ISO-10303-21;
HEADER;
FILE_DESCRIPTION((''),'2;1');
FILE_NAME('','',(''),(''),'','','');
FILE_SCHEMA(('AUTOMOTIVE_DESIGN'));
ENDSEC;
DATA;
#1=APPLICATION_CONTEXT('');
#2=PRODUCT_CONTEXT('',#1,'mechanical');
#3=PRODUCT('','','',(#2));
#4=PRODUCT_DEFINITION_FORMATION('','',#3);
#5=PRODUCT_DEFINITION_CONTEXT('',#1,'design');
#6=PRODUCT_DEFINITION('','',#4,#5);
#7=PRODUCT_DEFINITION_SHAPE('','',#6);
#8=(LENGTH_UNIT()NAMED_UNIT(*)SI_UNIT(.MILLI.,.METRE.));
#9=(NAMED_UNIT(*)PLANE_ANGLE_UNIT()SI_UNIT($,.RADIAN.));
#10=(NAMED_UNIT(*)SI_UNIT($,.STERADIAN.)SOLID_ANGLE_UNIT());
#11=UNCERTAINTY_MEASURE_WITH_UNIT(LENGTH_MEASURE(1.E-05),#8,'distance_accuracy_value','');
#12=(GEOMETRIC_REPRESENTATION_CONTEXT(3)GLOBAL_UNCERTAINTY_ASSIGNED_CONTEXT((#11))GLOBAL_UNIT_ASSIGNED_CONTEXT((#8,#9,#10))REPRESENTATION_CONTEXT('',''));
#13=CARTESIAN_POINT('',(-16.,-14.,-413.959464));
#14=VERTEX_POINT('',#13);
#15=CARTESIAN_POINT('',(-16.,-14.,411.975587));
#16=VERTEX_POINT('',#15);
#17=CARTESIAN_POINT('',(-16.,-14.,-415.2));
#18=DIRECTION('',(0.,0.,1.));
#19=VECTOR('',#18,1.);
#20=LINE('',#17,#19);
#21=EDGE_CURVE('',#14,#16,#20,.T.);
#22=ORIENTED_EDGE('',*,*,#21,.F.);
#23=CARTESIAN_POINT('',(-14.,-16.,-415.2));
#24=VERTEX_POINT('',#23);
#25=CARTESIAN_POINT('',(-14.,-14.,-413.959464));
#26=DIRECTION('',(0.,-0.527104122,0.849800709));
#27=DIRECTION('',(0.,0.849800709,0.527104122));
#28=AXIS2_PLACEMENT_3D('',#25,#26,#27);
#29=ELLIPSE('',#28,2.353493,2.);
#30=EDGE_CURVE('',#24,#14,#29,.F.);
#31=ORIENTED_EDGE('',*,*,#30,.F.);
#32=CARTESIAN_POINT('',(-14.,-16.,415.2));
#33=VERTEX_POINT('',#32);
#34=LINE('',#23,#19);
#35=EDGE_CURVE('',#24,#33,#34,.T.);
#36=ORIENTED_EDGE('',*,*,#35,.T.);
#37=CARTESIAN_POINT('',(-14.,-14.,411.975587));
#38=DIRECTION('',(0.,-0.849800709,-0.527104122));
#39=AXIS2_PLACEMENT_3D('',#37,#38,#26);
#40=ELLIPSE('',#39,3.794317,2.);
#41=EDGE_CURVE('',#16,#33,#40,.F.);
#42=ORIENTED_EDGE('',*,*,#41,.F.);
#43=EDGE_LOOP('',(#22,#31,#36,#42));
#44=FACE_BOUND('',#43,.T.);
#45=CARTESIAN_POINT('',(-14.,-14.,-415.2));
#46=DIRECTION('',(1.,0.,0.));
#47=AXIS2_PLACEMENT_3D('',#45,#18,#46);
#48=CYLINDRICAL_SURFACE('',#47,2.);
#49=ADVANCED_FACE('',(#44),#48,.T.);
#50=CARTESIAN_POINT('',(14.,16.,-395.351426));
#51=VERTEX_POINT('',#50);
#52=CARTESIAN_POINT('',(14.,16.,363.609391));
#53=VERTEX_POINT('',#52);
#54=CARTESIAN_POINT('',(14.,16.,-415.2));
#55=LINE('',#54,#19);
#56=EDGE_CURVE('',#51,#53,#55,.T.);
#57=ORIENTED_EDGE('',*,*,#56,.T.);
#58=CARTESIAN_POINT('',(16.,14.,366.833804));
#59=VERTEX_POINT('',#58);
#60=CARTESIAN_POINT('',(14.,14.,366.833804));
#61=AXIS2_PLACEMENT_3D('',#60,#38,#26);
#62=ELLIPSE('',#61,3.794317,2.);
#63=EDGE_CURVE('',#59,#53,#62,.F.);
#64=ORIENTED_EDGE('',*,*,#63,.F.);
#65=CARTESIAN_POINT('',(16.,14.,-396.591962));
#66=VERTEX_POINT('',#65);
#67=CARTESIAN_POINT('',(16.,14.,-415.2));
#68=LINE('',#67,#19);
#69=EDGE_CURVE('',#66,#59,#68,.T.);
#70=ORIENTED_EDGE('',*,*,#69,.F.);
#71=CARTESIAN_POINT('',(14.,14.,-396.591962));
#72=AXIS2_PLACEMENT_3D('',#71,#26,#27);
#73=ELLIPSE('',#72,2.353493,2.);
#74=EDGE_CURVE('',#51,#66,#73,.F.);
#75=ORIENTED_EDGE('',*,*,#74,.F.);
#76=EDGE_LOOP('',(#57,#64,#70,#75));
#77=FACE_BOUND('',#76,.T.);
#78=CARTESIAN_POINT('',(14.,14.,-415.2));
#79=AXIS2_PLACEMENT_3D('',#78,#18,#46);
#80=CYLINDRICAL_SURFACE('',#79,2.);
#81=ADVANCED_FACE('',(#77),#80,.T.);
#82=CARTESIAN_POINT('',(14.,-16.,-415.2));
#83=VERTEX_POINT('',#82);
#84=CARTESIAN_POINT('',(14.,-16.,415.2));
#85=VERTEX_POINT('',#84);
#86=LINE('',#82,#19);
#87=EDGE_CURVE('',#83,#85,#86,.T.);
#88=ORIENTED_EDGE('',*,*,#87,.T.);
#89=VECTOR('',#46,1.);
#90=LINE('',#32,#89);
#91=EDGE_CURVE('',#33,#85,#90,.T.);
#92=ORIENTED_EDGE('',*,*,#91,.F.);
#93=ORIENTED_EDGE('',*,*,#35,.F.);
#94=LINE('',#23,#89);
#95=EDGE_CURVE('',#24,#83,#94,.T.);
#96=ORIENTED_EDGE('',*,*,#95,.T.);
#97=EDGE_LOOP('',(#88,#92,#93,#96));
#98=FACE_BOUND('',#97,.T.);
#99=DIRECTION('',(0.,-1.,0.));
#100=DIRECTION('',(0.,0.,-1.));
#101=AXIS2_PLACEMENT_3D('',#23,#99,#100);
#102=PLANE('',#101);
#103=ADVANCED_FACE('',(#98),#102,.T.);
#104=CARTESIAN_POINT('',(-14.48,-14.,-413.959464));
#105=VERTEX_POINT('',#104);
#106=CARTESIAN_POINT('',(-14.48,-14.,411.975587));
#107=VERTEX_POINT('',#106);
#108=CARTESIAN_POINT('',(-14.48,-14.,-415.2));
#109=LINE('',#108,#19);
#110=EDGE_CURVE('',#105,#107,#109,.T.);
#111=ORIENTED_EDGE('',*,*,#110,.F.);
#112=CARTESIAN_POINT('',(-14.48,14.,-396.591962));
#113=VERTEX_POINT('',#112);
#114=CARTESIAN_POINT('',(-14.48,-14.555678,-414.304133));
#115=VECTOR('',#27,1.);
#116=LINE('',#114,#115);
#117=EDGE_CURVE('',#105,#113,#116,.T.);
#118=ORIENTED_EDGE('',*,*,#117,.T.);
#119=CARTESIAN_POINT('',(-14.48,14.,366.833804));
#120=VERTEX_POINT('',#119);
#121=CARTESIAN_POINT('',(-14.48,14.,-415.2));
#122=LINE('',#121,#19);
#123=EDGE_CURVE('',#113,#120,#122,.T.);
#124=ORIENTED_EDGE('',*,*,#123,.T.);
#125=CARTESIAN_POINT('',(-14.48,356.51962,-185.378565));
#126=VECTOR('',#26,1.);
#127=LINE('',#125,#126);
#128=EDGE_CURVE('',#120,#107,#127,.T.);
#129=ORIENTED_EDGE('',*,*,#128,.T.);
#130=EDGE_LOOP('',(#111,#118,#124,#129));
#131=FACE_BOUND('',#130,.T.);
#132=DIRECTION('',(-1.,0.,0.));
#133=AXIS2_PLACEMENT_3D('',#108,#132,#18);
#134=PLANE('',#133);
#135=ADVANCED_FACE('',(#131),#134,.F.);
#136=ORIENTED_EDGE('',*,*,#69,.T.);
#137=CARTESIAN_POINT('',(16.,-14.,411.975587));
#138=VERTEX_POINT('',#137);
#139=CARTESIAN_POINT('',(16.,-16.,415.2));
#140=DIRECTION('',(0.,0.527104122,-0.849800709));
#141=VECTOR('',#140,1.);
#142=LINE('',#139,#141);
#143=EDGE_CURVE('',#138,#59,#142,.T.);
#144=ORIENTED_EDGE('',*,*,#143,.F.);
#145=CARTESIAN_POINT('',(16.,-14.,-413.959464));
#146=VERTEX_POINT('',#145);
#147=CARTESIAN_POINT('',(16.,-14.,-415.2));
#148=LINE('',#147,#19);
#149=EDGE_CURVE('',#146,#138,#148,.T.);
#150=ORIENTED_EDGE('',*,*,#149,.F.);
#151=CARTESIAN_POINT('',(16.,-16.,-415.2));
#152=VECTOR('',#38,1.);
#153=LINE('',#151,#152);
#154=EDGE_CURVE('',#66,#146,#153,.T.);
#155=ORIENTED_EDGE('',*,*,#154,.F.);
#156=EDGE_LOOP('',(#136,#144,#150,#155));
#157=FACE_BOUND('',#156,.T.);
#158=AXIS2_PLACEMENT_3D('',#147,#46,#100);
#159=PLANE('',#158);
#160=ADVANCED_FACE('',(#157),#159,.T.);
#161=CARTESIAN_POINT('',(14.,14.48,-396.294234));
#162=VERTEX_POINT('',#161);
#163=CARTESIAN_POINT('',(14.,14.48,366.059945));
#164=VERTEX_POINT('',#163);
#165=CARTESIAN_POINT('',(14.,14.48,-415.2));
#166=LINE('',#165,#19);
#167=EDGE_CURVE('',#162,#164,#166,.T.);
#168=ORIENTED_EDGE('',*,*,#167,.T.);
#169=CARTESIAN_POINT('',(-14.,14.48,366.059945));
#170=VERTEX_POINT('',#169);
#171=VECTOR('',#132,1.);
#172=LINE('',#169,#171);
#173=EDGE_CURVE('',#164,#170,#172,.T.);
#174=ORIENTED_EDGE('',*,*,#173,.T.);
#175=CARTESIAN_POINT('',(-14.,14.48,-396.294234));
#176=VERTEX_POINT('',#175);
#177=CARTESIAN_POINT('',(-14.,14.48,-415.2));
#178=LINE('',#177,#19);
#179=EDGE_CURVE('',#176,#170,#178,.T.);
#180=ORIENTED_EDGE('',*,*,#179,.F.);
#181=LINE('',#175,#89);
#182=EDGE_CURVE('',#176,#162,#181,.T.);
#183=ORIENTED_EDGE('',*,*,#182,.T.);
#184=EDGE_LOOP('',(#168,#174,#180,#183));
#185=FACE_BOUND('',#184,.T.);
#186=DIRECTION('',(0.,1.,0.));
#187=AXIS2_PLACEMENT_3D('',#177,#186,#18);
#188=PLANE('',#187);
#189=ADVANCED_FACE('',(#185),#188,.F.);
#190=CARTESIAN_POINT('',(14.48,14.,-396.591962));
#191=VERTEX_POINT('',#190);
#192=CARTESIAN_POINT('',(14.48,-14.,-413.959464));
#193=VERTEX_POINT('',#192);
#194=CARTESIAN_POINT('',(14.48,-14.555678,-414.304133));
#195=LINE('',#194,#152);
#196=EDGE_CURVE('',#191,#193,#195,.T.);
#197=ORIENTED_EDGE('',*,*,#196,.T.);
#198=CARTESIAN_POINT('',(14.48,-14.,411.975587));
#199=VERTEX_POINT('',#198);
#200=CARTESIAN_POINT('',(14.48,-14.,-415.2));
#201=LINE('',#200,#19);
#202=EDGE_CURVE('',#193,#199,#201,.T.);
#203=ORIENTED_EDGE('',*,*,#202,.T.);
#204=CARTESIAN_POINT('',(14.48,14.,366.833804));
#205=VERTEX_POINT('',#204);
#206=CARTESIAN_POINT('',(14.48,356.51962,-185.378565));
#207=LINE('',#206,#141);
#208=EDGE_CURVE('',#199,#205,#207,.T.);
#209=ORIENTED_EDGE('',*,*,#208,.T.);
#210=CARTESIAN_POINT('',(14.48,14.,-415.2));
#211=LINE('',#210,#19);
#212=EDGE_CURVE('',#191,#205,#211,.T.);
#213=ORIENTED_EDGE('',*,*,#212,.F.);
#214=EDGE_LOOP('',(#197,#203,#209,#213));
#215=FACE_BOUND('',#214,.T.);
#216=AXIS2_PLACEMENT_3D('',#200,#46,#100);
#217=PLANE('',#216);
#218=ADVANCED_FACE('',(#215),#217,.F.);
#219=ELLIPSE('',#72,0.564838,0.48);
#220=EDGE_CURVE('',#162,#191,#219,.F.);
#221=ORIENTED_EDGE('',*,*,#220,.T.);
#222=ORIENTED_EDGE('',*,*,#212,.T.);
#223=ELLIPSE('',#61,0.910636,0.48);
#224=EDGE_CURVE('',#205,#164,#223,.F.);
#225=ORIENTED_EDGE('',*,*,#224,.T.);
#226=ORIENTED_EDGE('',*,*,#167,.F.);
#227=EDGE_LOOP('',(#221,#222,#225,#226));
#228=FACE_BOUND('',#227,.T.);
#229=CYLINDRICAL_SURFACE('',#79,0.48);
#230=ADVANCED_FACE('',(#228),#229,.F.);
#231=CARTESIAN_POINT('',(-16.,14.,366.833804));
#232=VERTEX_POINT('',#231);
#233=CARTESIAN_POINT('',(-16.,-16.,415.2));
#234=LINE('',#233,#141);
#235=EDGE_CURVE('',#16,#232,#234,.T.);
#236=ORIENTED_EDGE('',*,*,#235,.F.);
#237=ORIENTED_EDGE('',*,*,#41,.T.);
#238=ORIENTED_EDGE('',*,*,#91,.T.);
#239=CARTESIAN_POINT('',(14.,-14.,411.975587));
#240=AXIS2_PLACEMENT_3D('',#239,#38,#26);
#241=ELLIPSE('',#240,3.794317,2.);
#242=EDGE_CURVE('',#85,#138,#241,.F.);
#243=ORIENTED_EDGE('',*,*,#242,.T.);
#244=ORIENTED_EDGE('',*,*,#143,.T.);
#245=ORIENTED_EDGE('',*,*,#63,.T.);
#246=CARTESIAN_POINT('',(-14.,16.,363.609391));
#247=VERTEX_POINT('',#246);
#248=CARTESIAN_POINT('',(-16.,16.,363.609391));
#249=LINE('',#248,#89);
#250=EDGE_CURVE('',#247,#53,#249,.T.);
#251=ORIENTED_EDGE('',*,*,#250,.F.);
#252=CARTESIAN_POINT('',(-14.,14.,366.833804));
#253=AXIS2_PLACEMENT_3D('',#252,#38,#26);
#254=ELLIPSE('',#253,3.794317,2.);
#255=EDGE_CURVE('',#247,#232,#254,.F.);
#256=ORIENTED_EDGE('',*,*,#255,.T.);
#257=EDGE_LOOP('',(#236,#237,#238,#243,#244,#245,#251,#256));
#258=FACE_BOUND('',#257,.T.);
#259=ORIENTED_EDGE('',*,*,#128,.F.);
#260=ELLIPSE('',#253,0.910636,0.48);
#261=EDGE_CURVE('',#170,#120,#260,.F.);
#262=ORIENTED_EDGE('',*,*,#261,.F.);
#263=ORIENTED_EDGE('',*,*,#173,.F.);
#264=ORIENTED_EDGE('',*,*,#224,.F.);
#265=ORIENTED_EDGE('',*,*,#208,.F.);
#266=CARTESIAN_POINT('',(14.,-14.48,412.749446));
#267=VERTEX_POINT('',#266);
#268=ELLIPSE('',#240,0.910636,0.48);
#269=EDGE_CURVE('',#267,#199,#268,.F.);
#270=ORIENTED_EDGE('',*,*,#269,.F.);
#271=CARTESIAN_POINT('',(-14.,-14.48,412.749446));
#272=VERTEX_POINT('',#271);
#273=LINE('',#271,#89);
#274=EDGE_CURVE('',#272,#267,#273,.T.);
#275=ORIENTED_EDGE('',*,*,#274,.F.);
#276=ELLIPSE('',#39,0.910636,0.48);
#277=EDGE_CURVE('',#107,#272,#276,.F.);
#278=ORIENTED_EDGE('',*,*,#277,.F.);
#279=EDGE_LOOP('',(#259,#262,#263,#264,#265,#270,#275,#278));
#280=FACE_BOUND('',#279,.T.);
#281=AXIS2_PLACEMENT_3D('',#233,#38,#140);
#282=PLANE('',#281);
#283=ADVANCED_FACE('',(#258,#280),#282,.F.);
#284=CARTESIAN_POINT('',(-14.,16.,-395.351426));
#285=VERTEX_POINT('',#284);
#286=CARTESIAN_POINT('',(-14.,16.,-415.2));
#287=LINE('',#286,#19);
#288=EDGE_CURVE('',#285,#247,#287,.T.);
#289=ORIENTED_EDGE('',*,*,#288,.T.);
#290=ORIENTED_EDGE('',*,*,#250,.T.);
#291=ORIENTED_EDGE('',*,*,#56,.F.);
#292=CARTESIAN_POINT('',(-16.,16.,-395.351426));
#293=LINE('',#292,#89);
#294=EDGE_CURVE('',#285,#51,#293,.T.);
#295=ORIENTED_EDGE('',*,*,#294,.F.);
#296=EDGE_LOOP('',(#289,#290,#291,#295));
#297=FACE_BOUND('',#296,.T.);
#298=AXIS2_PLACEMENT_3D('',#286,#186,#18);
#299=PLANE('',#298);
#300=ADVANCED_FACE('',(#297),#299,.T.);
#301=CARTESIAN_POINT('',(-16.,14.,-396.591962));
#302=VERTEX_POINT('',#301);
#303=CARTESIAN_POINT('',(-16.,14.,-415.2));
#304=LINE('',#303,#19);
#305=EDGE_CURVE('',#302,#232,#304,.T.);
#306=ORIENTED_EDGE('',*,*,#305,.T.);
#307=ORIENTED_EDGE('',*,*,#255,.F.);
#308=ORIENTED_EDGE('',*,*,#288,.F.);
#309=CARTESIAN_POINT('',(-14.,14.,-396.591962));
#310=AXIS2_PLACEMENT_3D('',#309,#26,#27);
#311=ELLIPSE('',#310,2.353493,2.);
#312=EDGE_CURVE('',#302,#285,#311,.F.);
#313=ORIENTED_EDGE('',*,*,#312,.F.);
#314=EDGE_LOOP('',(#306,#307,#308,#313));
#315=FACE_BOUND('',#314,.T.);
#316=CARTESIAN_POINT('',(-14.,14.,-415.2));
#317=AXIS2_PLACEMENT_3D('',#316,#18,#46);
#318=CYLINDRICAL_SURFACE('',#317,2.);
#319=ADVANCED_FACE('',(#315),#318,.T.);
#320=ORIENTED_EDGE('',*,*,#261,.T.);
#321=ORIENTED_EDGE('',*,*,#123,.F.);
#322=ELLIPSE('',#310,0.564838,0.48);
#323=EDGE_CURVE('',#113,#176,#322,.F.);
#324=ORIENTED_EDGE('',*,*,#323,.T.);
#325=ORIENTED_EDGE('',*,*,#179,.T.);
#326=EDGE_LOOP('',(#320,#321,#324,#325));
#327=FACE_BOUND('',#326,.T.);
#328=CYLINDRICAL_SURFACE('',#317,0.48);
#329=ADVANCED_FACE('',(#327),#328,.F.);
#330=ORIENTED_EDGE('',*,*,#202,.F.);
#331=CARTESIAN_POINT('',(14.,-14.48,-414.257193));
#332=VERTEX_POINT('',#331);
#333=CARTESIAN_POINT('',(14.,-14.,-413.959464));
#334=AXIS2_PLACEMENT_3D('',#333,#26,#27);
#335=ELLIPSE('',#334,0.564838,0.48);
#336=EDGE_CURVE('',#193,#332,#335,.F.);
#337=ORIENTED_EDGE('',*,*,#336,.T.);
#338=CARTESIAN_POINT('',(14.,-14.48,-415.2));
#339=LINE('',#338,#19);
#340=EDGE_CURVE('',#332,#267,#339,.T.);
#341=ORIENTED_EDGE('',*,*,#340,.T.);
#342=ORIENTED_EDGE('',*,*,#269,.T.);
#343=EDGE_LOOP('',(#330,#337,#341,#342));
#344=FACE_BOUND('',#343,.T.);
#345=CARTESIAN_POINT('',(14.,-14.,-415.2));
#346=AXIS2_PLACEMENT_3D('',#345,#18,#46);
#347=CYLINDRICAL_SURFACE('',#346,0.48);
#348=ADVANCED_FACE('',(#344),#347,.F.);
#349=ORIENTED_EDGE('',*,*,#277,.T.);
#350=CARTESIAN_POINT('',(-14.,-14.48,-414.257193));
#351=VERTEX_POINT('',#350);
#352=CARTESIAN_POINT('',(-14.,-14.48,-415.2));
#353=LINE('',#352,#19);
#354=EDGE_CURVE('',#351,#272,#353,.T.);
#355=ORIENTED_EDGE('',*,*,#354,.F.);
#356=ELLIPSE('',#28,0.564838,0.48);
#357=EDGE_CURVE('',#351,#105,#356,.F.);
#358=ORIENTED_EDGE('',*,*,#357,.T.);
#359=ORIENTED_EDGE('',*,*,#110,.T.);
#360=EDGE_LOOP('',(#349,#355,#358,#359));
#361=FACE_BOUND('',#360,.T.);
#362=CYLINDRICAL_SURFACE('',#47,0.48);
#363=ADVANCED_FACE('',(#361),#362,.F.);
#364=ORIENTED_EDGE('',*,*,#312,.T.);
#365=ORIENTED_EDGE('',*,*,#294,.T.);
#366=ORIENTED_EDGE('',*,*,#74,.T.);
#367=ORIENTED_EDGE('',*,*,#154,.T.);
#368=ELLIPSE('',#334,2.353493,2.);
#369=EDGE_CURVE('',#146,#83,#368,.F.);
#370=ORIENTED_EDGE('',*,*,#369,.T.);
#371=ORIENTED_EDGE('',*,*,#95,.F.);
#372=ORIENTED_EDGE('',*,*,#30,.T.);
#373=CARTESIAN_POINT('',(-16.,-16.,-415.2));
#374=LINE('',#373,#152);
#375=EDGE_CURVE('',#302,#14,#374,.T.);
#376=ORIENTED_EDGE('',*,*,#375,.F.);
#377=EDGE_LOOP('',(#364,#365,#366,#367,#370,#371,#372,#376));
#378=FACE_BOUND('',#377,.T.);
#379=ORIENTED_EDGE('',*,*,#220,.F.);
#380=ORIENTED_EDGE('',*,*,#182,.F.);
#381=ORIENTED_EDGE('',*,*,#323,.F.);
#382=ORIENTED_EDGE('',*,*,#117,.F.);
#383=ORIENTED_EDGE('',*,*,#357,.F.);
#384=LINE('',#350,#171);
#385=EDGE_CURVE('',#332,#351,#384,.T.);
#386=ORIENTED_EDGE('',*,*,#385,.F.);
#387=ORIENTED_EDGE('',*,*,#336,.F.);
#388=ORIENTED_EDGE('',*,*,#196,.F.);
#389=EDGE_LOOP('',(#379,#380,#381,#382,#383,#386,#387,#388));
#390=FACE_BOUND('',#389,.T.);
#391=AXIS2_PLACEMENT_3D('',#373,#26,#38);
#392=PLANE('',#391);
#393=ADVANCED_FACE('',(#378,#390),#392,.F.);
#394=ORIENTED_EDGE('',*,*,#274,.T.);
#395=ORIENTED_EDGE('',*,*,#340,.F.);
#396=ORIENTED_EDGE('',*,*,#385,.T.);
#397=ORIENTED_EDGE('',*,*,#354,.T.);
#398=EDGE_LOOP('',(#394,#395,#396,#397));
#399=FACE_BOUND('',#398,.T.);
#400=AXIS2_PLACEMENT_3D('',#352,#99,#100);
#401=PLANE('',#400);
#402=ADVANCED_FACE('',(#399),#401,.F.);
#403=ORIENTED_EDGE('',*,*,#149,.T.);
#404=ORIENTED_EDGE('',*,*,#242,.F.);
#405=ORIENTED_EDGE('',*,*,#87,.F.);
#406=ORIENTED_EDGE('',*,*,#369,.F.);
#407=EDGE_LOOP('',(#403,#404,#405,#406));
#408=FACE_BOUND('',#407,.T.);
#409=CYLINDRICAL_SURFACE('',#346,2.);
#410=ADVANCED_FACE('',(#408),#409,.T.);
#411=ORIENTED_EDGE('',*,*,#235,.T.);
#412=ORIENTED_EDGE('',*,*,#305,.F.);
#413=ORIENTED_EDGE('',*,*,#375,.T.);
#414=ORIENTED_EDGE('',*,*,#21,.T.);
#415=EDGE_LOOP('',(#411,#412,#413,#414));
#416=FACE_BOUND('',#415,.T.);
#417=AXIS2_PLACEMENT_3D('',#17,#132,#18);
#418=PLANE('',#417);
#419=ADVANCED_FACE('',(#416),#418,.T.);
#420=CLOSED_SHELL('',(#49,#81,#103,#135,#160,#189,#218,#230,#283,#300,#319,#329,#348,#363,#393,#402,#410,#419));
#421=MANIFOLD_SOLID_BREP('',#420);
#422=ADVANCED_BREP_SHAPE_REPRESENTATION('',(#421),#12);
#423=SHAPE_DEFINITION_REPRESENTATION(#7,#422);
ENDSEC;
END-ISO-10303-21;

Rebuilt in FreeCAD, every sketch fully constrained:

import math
import FreeCAD as App
import Part
import Sketcher
Q = App.Units.Quantity


def add_polygon(sketch, points):
    """Adds a closed chain of lines whose ends are joined by coincident constraints."""
    first, n = sketch.GeometryCount, len(points)
    for a, b in zip(points, points[1:] + points[:1]):
        sketch.addGeometry(Part.LineSegment(App.Vector(*a, 0), App.Vector(*b, 0)), False)
    for i in range(n):
        sketch.addConstraint(Sketcher.Constraint("Coincident", first + i, 2, first + (i + 1) % n, 1))

doc = App.newDocument("Part")
body = doc.addObject("PartDesign::Body", "Body")

# Sketch on XY plane
sketch1 = body.newObject("Sketcher::SketchObject", "Sketch")
sketch1.AttachmentSupport = (doc.getObject("XY_Plane"), [""])
sketch1.MapMode = "FlatFace"
sketch1.addGeometry(Part.LineSegment(App.Vector(-14, -16, 0), App.Vector(14, -16, 0)), False)
sketch1.addGeometry(Part.ArcOfCircle(Part.Circle(App.Vector(14, -14, 0), App.Vector(0, 0, 1), 2), math.radians(-90), math.radians(0)), False)
sketch1.addGeometry(Part.LineSegment(App.Vector(16, -14, 0), App.Vector(16, 14, 0)), False)
sketch1.addGeometry(Part.ArcOfCircle(Part.Circle(App.Vector(14, 14, 0), App.Vector(0, 0, 1), 2), math.radians(0), math.radians(90)), False)
sketch1.addGeometry(Part.LineSegment(App.Vector(14, 16, 0), App.Vector(-14, 16, 0)), False)
sketch1.addGeometry(Part.ArcOfCircle(Part.Circle(App.Vector(-14, 14, 0), App.Vector(0, 0, 1), 2), math.radians(90), math.radians(180)), False)
sketch1.addGeometry(Part.LineSegment(App.Vector(-16, 14, 0), App.Vector(-16, -14, 0)), False)
sketch1.addGeometry(Part.ArcOfCircle(Part.Circle(App.Vector(-14, -14, 0), App.Vector(0, 0, 1), 2), math.radians(-180), math.radians(-90)), False)
sketch1.addGeometry(Part.ArcOfCircle(Part.Circle(App.Vector(-14, 14, 0), App.Vector(0, 0, 1), 0.48), math.radians(90), math.radians(180)), False)
sketch1.addGeometry(Part.LineSegment(App.Vector(-14, 14.48, 0), App.Vector(14, 14.48, 0)), False)
sketch1.addGeometry(Part.ArcOfCircle(Part.Circle(App.Vector(14, 14, 0), App.Vector(0, 0, 1), 0.48), math.radians(0), math.radians(90)), False)
sketch1.addGeometry(Part.LineSegment(App.Vector(14.48, 14, 0), App.Vector(14.48, -14, 0)), False)
sketch1.addGeometry(Part.ArcOfCircle(Part.Circle(App.Vector(14, -14, 0), App.Vector(0, 0, 1), 0.48), math.radians(-90), math.radians(0)), False)
sketch1.addGeometry(Part.LineSegment(App.Vector(14, -14.48, 0), App.Vector(-14, -14.48, 0)), False)
sketch1.addGeometry(Part.ArcOfCircle(Part.Circle(App.Vector(-14, -14, 0), App.Vector(0, 0, 1), 0.48), math.radians(180), math.radians(270)), False)
sketch1.addGeometry(Part.LineSegment(App.Vector(-14.48, -14, 0), App.Vector(-14.48, 14, 0)), False)
sketch1.addConstraint(Sketcher.Constraint("Tangent", 0, 2, 1, 1))
sketch1.addConstraint(Sketcher.Constraint("Tangent", 1, 2, 2, 1))
sketch1.addConstraint(Sketcher.Constraint("Tangent", 2, 2, 3, 1))
sketch1.addConstraint(Sketcher.Constraint("Tangent", 3, 2, 4, 1))
sketch1.addConstraint(Sketcher.Constraint("Tangent", 4, 2, 5, 1))
sketch1.addConstraint(Sketcher.Constraint("Tangent", 5, 2, 6, 1))
sketch1.addConstraint(Sketcher.Constraint("Tangent", 6, 2, 7, 1))
sketch1.addConstraint(Sketcher.Constraint("Tangent", 7, 2, 0, 1))
sketch1.addConstraint(Sketcher.Constraint("Tangent", 8, 1, 9, 1))
sketch1.addConstraint(Sketcher.Constraint("Tangent", 9, 2, 10, 2))
sketch1.addConstraint(Sketcher.Constraint("Tangent", 10, 1, 11, 1))
sketch1.addConstraint(Sketcher.Constraint("Tangent", 11, 2, 12, 2))
sketch1.addConstraint(Sketcher.Constraint("Tangent", 12, 1, 13, 1))
sketch1.addConstraint(Sketcher.Constraint("Tangent", 13, 2, 14, 2))
sketch1.addConstraint(Sketcher.Constraint("Tangent", 14, 1, 15, 1))
sketch1.addConstraint(Sketcher.Constraint("Tangent", 15, 2, 8, 2))
sketch1.addConstraint(Sketcher.Constraint("Horizontal", 0))
sketch1.addConstraint(Sketcher.Constraint("Vertical", 2))
sketch1.addConstraint(Sketcher.Constraint("Horizontal", 4))
sketch1.addConstraint(Sketcher.Constraint("Vertical", 6))
sketch1.addConstraint(Sketcher.Constraint("Horizontal", 9))
sketch1.addConstraint(Sketcher.Constraint("Vertical", 11))
sketch1.addConstraint(Sketcher.Constraint("Horizontal", 13))
sketch1.addConstraint(Sketcher.Constraint("Vertical", 15))
sketch1.addConstraint(Sketcher.Constraint("Coincident", 8, 3, 5, 3))
sketch1.addConstraint(Sketcher.Constraint("Coincident", 10, 3, 3, 3))
sketch1.addConstraint(Sketcher.Constraint("Coincident", 12, 3, 1, 3))
sketch1.addConstraint(Sketcher.Constraint("Equal", 1, 3))
sketch1.addConstraint(Sketcher.Constraint("Equal", 3, 5))
sketch1.addConstraint(Sketcher.Constraint("Equal", 5, 7))
sketch1.addConstraint(Sketcher.Constraint("Equal", 12, 14))
sketch1.addConstraint(Sketcher.Constraint("Symmetric", 1, 3, 5, 3, -1, 1))
sketch1.addConstraint(Sketcher.Constraint("Equal", 13, 2))
sketch1.addConstraint(Sketcher.Constraint("Radius", 1, 2.0))
sketch1.addConstraint(Sketcher.Constraint("DistanceX", 0, 1, 0, 2, 28.0))
sketch1.addConstraint(Sketcher.Constraint("Radius", 8, 0.48))
pad1 = body.newObject("PartDesign::Pad", "Pad")
pad1.Profile = sketch1
pad1.Type = "TwoLengths"
pad1.Length = 415.2
pad1.Length2 = 415.2

# Sketch on YZ plane
sketch2 = body.newObject("Sketcher::SketchObject", "Sketch001")
sketch2.AttachmentSupport = (doc.getObject("YZ_Plane"), [""])
sketch2.MapMode = "FlatFace"
sketch2.AttachmentOffset = App.Placement(App.Vector(0, 0, 16), App.Rotation())
add_polygon(sketch2, [(16, 415), (-16, 415), (16, 364)])  # lines 0-2
sketch2.addConstraint(Sketcher.Constraint("Horizontal", 0))
sketch2.addConstraint(Sketcher.Constraint("Vertical", 2))
sketch2.addConstraint(Sketcher.Constraint("DistanceX", 0, 2, 0, 1, 32.0))
sketch2.addConstraint(Sketcher.Constraint("DistanceX", 0, 2, -1, 1, 16.0))
sketch2.addConstraint(Sketcher.Constraint("DistanceY", -1, 1, 0, 2, 415.2))
sketch2.addConstraint(Sketcher.Constraint("Angle", 1, Q("-58.19 deg")))
pocket1 = body.newObject("PartDesign::Pocket", "Pocket")
pocket1.Profile = sketch2
pocket1.Type = "ThroughAll"

# Sketch on YZ plane
sketch3 = body.newObject("Sketcher::SketchObject", "Sketch002")
sketch3.AttachmentSupport = (doc.getObject("YZ_Plane"), [""])
sketch3.MapMode = "FlatFace"
sketch3.AttachmentOffset = App.Placement(App.Vector(0, 0, 16), App.Rotation())
add_polygon(sketch3, [(-16, -415), (16, -415), (16, -395)])  # lines 0-2
sketch3.addConstraint(Sketcher.Constraint("Horizontal", 0))
sketch3.addConstraint(Sketcher.Constraint("Vertical", 1))
sketch3.addConstraint(Sketcher.Constraint("DistanceX", 0, 1, 0, 2, 32.0))
sketch3.addConstraint(Sketcher.Constraint("DistanceX", -1, 1, 0, 2, 16.0))
sketch3.addConstraint(Sketcher.Constraint("DistanceY", 0, 2, -1, 1, 415.2))
sketch3.addConstraint(Sketcher.Constraint("Angle", 2, Q("-148.19 deg")))
pocket2 = body.newObject("PartDesign::Pocket", "Pocket001")
pocket2.Profile = sketch3
pocket2.Type = "ThroughAll"

doc.recompute()
